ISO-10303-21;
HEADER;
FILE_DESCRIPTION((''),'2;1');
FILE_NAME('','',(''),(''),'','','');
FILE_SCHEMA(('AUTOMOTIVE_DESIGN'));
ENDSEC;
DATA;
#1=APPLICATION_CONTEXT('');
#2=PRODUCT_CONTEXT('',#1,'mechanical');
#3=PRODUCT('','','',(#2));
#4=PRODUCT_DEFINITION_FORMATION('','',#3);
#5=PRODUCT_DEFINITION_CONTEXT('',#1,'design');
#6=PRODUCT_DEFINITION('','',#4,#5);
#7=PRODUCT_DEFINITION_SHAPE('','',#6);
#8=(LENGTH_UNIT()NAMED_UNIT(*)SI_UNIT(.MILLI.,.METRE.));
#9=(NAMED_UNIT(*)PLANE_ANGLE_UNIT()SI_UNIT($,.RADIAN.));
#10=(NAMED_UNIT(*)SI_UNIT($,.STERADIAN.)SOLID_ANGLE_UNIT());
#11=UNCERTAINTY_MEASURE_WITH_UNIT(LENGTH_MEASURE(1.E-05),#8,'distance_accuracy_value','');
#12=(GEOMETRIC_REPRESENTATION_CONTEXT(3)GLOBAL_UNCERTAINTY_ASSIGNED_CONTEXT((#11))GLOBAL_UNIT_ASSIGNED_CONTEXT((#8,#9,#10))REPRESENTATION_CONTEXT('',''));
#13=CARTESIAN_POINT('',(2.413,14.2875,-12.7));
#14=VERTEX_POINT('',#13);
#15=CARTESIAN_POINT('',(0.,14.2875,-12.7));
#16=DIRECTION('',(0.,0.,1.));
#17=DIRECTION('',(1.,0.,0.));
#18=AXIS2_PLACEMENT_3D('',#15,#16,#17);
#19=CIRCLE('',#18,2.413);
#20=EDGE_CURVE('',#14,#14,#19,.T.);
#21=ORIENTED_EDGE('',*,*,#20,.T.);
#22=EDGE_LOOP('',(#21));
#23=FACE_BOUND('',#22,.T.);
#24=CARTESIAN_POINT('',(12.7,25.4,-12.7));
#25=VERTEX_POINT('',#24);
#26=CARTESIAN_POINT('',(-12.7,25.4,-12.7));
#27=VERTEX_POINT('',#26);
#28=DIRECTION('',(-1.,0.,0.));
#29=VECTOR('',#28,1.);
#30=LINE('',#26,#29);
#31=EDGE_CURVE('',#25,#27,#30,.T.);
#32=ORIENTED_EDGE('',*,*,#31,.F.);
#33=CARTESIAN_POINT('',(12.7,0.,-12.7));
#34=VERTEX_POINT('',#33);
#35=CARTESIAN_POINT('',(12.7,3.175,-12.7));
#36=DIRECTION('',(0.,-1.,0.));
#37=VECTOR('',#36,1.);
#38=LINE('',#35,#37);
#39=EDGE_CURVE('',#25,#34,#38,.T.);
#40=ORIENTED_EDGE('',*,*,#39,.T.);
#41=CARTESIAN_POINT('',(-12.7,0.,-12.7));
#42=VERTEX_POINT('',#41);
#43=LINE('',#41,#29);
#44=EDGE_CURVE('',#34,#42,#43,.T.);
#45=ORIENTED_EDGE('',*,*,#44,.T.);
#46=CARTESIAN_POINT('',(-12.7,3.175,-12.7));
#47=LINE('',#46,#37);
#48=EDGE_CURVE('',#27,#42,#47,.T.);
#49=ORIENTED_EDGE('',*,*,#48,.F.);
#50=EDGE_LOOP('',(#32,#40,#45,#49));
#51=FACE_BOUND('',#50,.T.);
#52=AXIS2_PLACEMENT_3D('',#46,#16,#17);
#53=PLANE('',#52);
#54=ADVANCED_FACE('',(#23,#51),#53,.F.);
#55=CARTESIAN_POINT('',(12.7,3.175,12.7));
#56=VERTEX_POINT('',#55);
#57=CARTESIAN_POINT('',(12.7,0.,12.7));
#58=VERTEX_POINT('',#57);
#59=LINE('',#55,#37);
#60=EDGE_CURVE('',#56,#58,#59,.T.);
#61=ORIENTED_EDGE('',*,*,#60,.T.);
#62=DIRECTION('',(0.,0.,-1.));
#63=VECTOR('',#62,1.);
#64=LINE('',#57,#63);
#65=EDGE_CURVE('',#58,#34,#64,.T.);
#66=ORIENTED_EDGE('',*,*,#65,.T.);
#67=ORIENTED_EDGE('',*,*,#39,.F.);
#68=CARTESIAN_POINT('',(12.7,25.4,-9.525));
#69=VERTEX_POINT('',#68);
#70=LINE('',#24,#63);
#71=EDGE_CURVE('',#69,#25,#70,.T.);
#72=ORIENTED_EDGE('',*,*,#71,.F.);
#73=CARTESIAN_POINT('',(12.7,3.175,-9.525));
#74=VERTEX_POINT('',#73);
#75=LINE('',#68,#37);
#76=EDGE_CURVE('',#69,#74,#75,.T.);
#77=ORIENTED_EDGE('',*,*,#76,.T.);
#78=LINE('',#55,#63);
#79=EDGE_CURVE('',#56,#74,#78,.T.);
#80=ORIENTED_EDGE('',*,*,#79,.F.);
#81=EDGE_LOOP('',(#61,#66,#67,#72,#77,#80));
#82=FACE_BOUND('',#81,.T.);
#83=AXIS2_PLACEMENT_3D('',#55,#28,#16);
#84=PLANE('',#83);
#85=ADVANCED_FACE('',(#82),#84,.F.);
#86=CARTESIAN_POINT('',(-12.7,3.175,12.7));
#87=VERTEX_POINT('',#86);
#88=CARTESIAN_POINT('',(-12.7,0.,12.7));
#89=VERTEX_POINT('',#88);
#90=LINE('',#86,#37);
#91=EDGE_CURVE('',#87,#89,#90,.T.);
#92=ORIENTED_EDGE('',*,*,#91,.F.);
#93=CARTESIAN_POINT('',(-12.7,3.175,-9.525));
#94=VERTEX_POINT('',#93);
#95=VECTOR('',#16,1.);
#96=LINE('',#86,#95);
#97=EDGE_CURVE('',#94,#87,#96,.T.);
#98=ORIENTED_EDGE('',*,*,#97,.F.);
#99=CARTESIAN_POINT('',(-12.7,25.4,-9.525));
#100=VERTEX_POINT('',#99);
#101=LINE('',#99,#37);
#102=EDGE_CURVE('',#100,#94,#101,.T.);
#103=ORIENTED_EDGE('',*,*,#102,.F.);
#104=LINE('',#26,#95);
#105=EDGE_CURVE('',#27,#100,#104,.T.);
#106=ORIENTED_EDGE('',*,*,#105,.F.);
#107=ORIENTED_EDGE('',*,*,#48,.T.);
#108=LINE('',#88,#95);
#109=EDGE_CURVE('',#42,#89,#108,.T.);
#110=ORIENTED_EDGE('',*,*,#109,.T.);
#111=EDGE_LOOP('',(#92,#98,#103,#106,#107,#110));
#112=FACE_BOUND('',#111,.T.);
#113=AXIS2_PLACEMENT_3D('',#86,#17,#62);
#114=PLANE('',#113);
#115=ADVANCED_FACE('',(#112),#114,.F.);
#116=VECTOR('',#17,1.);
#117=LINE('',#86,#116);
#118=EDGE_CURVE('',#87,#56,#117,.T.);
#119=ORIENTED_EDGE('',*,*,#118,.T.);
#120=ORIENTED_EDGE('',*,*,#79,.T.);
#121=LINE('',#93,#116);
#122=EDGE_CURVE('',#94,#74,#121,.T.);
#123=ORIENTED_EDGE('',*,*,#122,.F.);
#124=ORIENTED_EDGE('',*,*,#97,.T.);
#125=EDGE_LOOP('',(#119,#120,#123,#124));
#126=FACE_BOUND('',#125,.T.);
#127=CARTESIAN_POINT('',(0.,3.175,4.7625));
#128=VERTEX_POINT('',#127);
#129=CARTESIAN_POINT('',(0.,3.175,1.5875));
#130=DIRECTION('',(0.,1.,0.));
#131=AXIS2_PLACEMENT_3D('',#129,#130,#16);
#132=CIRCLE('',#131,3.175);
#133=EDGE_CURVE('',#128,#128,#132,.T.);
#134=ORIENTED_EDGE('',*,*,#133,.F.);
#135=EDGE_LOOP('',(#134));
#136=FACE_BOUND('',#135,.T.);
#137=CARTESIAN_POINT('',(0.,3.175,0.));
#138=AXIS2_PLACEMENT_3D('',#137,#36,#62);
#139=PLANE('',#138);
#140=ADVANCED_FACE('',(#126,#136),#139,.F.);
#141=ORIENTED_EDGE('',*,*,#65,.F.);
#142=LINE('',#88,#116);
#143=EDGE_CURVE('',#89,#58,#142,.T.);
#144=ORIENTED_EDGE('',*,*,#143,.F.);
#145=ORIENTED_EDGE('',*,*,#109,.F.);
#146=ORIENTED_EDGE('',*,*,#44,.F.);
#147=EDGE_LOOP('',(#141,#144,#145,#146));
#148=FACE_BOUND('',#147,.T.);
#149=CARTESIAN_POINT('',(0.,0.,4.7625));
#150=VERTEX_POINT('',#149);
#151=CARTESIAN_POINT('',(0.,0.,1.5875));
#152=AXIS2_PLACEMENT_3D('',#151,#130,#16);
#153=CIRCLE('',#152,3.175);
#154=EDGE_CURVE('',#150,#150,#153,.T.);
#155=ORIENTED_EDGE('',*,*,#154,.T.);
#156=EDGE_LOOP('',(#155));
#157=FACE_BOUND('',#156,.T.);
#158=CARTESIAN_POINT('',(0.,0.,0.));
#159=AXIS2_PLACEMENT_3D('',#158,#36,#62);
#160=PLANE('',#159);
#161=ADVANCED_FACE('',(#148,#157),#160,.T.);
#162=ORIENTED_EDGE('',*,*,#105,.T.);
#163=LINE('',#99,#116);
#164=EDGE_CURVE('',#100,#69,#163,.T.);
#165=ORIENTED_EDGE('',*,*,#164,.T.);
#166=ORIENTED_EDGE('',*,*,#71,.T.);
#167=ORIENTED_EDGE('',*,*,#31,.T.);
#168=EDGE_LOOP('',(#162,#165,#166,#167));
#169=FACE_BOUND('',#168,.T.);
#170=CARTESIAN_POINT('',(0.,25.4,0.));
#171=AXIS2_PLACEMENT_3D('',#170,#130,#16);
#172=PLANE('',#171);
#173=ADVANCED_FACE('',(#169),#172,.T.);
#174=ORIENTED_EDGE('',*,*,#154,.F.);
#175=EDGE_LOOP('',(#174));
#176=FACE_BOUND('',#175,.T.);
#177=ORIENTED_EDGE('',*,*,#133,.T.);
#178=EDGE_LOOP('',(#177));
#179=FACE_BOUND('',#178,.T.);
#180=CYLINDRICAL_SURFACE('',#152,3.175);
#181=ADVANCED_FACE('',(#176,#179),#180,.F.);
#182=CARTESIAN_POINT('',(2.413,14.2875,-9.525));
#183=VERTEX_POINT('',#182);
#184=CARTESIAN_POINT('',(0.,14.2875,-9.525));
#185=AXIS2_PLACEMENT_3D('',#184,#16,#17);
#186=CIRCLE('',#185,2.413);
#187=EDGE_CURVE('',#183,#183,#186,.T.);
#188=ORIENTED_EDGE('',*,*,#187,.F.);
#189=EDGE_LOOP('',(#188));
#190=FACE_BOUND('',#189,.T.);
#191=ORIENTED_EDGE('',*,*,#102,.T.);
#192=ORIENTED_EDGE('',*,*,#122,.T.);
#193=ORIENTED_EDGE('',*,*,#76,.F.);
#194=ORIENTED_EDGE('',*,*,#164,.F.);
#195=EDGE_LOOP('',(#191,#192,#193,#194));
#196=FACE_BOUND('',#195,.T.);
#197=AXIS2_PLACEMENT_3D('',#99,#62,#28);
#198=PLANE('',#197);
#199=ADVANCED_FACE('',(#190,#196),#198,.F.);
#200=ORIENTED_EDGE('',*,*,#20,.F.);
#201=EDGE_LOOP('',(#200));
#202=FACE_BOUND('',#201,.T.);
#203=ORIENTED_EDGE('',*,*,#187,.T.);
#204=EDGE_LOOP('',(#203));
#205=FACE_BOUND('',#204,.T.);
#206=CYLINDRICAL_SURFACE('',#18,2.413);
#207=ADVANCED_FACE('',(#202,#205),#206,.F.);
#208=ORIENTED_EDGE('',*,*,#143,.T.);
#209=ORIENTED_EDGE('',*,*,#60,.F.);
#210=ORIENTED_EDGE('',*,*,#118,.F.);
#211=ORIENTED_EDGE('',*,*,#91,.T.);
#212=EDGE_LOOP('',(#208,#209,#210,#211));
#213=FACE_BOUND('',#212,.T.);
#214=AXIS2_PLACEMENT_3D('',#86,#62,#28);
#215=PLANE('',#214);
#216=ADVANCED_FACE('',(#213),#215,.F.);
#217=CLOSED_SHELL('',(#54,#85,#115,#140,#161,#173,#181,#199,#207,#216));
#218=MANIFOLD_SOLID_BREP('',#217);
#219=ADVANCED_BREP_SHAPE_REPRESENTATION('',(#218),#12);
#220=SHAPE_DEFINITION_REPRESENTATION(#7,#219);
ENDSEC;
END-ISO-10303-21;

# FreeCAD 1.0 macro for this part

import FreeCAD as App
import Part
import Sketcher

V = App.Vector
Q = App.Units.Quantity

doc = App.newDocument("Part")
body = doc.addObject("PartDesign::Body", "Body")

# Sketch on XZ plane
sketch1 = doc.addObject("Sketcher::SketchObject", "Sketch")
body.addObject(sketch1)
sketch1.AttachmentSupport = (doc.XZ_Plane, [""])
sketch1.MapMode = "FlatFace"
sketch1.addGeometry([
    Part.LineSegment(V(-13, -13, 0), V(-13, 13, 0)),
    Part.LineSegment(V(-13, 13, 0), V(13, 13, 0)),
    Part.LineSegment(V(13, 13, 0), V(13, -13, 0)),
    Part.LineSegment(V(13, -13, 0), V(-13, -13, 0)),
], False)
sketch1.addConstraint([
    Sketcher.Constraint("Coincident", 0, 2, 1, 1),
    Sketcher.Constraint("Coincident", 1, 2, 2, 1),
    Sketcher.Constraint("Coincident", 2, 2, 3, 1),
    Sketcher.Constraint("Coincident", 3, 2, 0, 1),
    Sketcher.Constraint("Vertical", 0),
    Sketcher.Constraint("Horizontal", 1),
    Sketcher.Constraint("Vertical", 2),
    Sketcher.Constraint("Horizontal", 3),
    Sketcher.Constraint("Symmetric", 0, 2, 2, 2, -1, 1),
    Sketcher.Constraint("Equal", 3, 0),
    Sketcher.Constraint("DistanceX", 1, 1, 1, 2, Q("1 in")),
])
pad1 = doc.addObject("PartDesign::Pad", "Pad")
body.addObject(pad1)
pad1.Profile = sketch1
pad1.Length = Q("0.125 in")
pad1.Reversed = True

# Sketch on XZ plane
sketch2 = doc.addObject("Sketcher::SketchObject", "Sketch001")
body.addObject(sketch2)
sketch2.AttachmentSupport = (doc.XZ_Plane, [""])
sketch2.MapMode = "FlatFace"
sketch2.AttachmentOffset = App.Placement(V(0, 0, -0.125 * 25.4), App.Rotation())
sketch2.addGeometry([
    Part.LineSegment(V(-12.7, -12.7, 0), V(-12.7, -9.5, 0)),
    Part.LineSegment(V(-12.7, -9.5, 0), V(12.7, -9.5, 0)),
    Part.LineSegment(V(12.7, -9.5, 0), V(12.7, -12.7, 0)),
    Part.LineSegment(V(12.7, -12.7, 0), V(-12.7, -12.7, 0)),
], False)
sketch2.addConstraint([
    Sketcher.Constraint("Coincident", 0, 2, 1, 1),
    Sketcher.Constraint("Coincident", 1, 2, 2, 1),
    Sketcher.Constraint("Coincident", 2, 2, 3, 1),
    Sketcher.Constraint("Coincident", 3, 2, 0, 1),
    Sketcher.Constraint("Vertical", 0),
    Sketcher.Constraint("Horizontal", 1),
    Sketcher.Constraint("Vertical", 2),
    Sketcher.Constraint("Horizontal", 3),
    Sketcher.Constraint("DistanceX", 1, 1, 1, 2, Q("1 in")),
    Sketcher.Constraint("DistanceX", 0, 2, -1, 1, Q("0.5 in")),
    Sketcher.Constraint("DistanceY", 2, 2, -1, 1, Q("0.5 in")),
    Sketcher.Constraint("DistanceY", 0, 1, 0, 2, Q("0.125 in")),
])
pad2 = doc.addObject("PartDesign::Pad", "Pad001")
body.addObject(pad2)
pad2.Profile = sketch2
pad2.Length = Q("0.875 in")
pad2.Reversed = True

# Sketch on XY plane
sketch3 = doc.addObject("Sketcher::SketchObject", "Sketch002")
body.addObject(sketch3)
sketch3.AttachmentSupport = (doc.XY_Plane, [""])
sketch3.MapMode = "FlatFace"
sketch3.AttachmentOffset = App.Placement(V(0, 0, -0.375 * 25.4), App.Rotation())
sketch3.addGeometry(Part.Circle(V(0, 14.3, 0), V(0, 0, 1), 2.4), False)
sketch3.addConstraint([
    Sketcher.Constraint("PointOnObject", 0, 3, -2),
    Sketcher.Constraint("Diameter", 0, Q("0.19 in")),
    Sketcher.Constraint("DistanceY", -1, 1, 0, 3, Q("0.5625 in")),
])
pocket1 = doc.addObject("PartDesign::Pocket", "Pocket")
body.addObject(pocket1)
pocket1.Profile = sketch3
pocket1.Length = Q("0.125 in")

# Sketch on XZ plane
sketch4 = doc.addObject("Sketcher::SketchObject", "Sketch003")
body.addObject(sketch4)
sketch4.AttachmentSupport = (doc.XZ_Plane, [""])
sketch4.MapMode = "FlatFace"
sketch4.AttachmentOffset = App.Placement(V(0, 0, -0.125 * 25.4), App.Rotation())
sketch4.addGeometry(Part.Circle(V(0, 1.6, 0), V(0, 0, 1), 3.2), False)
sketch4.addConstraint([
    Sketcher.Constraint("PointOnObject", 0, 3, -2),
    Sketcher.Constraint("Diameter", 0, Q("0.25 in")),
    Sketcher.Constraint("DistanceY", -1, 1, 0, 3, Q("0.0625 in")),
])
pocket2 = doc.addObject("PartDesign::Pocket", "Pocket001")
body.addObject(pocket2)
pocket2.Profile = sketch4
pocket2.Length = Q("0.125 in")
pocket2.Reversed = True

doc.recompute()
